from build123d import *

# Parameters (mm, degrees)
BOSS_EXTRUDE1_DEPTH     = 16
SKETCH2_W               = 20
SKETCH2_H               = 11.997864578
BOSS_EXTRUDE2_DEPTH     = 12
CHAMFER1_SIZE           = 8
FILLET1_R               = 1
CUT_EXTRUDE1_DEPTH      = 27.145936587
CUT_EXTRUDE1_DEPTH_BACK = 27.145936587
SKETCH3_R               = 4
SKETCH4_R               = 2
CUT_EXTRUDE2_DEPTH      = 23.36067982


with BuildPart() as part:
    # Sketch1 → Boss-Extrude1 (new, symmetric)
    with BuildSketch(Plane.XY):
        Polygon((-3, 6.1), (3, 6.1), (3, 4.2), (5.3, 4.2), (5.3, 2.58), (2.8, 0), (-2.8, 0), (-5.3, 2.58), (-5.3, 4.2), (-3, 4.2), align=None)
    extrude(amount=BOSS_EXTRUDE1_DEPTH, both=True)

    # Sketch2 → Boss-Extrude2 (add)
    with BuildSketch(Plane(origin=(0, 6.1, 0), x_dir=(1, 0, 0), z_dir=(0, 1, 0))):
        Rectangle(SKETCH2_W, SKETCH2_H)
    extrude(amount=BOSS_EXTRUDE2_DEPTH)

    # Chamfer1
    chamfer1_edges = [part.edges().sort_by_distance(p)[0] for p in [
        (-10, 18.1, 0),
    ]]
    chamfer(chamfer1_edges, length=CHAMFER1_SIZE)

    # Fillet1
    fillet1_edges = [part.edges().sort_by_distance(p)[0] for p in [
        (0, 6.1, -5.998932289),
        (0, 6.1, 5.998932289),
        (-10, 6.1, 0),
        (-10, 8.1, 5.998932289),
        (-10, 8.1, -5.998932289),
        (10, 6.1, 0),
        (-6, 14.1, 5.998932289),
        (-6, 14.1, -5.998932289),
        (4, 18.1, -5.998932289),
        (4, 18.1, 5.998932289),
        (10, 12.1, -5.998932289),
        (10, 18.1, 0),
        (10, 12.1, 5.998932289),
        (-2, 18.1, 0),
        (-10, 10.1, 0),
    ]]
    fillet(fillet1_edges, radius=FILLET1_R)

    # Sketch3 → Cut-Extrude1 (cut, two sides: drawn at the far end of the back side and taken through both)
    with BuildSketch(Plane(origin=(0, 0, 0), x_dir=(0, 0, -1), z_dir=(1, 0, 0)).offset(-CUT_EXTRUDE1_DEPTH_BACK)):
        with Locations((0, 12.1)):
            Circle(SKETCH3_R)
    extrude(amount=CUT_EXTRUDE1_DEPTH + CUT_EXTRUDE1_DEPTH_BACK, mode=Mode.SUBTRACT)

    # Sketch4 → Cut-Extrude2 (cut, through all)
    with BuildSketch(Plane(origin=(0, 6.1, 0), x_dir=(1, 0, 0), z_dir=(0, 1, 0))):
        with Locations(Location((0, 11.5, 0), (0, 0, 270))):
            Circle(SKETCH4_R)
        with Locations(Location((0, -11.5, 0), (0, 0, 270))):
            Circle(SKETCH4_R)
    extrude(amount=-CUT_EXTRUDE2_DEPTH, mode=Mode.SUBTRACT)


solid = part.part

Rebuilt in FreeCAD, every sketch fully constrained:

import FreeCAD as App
import Part
import Sketcher

V = App.Vector


def edges_at(feature, points):
    """Names of the edges that pass closest to the given points."""
    edges = feature.Shape.Edges
    near = lambda p: min(range(len(edges)), key=lambda i: edges[i].distToShape(Part.Vertex(*p))[0])
    return sorted({f"Edge{near(p) + 1}" for p in points})


def add_polygon(sketch, points):
    """Adds a closed chain of lines whose ends are joined by coincident constraints."""
    first, n = sketch.GeometryCount, len(points)
    for a, b in zip(points, points[1:] + points[:1]):
        sketch.addGeometry(Part.LineSegment(App.Vector(*a, 0), App.Vector(*b, 0)), False)
    for i in range(n):
        sketch.addConstraint(Sketcher.Constraint("Coincident", first + i, 2, first + (i + 1) % n, 1))

doc = App.newDocument("Part")
body = doc.addObject("PartDesign::Body", "Body")

sketch1 = body.newObject("Sketcher::SketchObject", "Sketch")
sketch1.AttachmentSupport = (doc.getObject("XY_Plane"), [""])
sketch1.MapMode = "FlatFace"
add_polygon(sketch1, [(3, 6.1), (-3, 6.1), (-3, 4.2), (-5.3, 4.2), (-5.3, 2.6), (-2.8, 0), (2.8, 0), (5.3, 2.6), (5.3, 4.2), (3, 4.2)])
sketch1.addConstraint(Sketcher.Constraint("Horizontal", 0))
sketch1.addConstraint(Sketcher.Constraint("Vertical", 1))
sketch1.addConstraint(Sketcher.Constraint("Horizontal", 2))
sketch1.addConstraint(Sketcher.Constraint("Vertical", 3))
sketch1.addConstraint(Sketcher.Constraint("Horizontal", 5))
sketch1.addConstraint(Sketcher.Constraint("Vertical", 7))
sketch1.addConstraint(Sketcher.Constraint("Horizontal", 8))
sketch1.addConstraint(Sketcher.Constraint("Vertical", 9))
sketch1.addConstraint(Sketcher.Constraint("Symmetric", 4, 2, 5, 2, -1, 1))
sketch1.addConstraint(Sketcher.Constraint("Symmetric", 3, 2, 6, 2, -2))
sketch1.addConstraint(Sketcher.Constraint("Symmetric", 1, 2, 8, 2, -2))
sketch1.addConstraint(Sketcher.Constraint("DistanceX", 0, 2, 0, 1, 6.0))
sketch1.addConstraint(Sketcher.Constraint("DistanceX", 2, 2, 2, 1, 2.3))
sketch1.addConstraint(Sketcher.Constraint("DistanceX", 5, 1, 5, 2, 5.6))
sketch1.addConstraint(Sketcher.Constraint("DistanceY", 1, 2, 1, 1, 1.9))
sketch1.addConstraint(Sketcher.Constraint("DistanceY", 3, 2, 3, 1, 1.62))
sketch1.addConstraint(Sketcher.Constraint("DistanceY", -1, 1, 0, 2, 6.1))
pad1 = body.newObject("PartDesign::Pad", "Pad")
pad1.Profile = sketch1
pad1.Length = 32
pad1.Midplane = True

sketch2 = body.newObject("Sketcher::SketchObject", "Sketch001")
sketch2.AttachmentSupport = (doc.getObject("XZ_Plane"), [""])
sketch2.MapMode = "FlatFace"
sketch2.AttachmentOffset = App.Placement(V(0, 0, -6.1), App.Rotation())
add_polygon(sketch2, [(-10, -6), (-10, 6), (10, 6), (10, -6)])
sketch2.addConstraint(Sketcher.Constraint("Vertical", 0))
sketch2.addConstraint(Sketcher.Constraint("Horizontal", 1))
sketch2.addConstraint(Sketcher.Constraint("Vertical", 2))
sketch2.addConstraint(Sketcher.Constraint("Horizontal", 3))
sketch2.addConstraint(Sketcher.Constraint("Symmetric", 0, 2, 2, 2, -1, 1))
sketch2.addConstraint(Sketcher.Constraint("DistanceX", 1, 1, 1, 2, 20.0))
sketch2.addConstraint(Sketcher.Constraint("DistanceY", 0, 1, 0, 2, 11.997865))
pad2 = body.newObject("PartDesign::Pad", "Pad001")
pad2.Profile = sketch2
pad2.Length = 12
pad2.Reversed = True
doc.recompute()

chamfer = body.newObject("PartDesign::Chamfer", "Chamfer")
chamfer.Base = (pad2, edges_at(pad2, [(-10, 18.1, 0)]))
chamfer.Size = 8
doc.recompute()

fillet = body.newObject("PartDesign::Fillet", "Fillet")
fillet.Base = (chamfer, edges_at(chamfer, [
    (0, 6.1, -5.999),
    (0, 6.1, 5.999),
    (-10, 6.1, 0),
    (-10, 8.1, 5.999),
    (-10, 8.1, -5.999),
    (10, 6.1, 0),
    (-6, 14.1, 5.999),
    (-6, 14.1, -5.999),
    (4, 18.1, -5.999),
    (4, 18.1, 5.999),
    (10, 12.1, -5.999),
    (10, 18.1, 0),
    (10, 12.1, 5.999),
    (-2, 18.1, 0),
    (-10, 10.1, 0),
]))
fillet.Radius = 1

sketch3 = body.newObject("Sketcher::SketchObject", "Sketch002")
sketch3.AttachmentSupport = (doc.getObject("YZ_Plane"), [""])
sketch3.MapMode = "FlatFace"
sketch3.addGeometry(Part.Circle(V(12.1, 0, 0), V(0, 0, 1), 4), False)
sketch3.addConstraint(Sketcher.Constraint("PointOnObject", 0, 3, -1))
sketch3.addConstraint(Sketcher.Constraint("Diameter", 0, 8.0))
sketch3.addConstraint(Sketcher.Constraint("DistanceX", -1, 1, 0, 3, 12.1))
pocket1 = body.newObject("PartDesign::Pocket", "Pocket")
pocket1.Profile = sketch3
pocket1.Type = "ThroughAll"
pocket1.Midplane = True

sketch4 = body.newObject("Sketcher::SketchObject", "Sketch003")
sketch4.AttachmentSupport = (doc.getObject("XZ_Plane"), [""])
sketch4.MapMode = "FlatFace"
sketch4.AttachmentOffset = App.Placement(V(0, 0, -6.1), App.Rotation())
sketch4.addGeometry(Part.Circle(V(0, -11.5, 0), V(0, 0, 1), 2), False)
sketch4.addGeometry(Part.Circle(V(0, 11.5, 0), V(0, 0, 1), 2), False)
sketch4.addConstraint(Sketcher.Constraint("Equal", 0, 1))
sketch4.addConstraint(Sketcher.Constraint("Symmetric", 0, 3, 1, 3, -1, 1))
sketch4.addConstraint(Sketcher.Constraint("PointOnObject", 0, 3, -2))
sketch4.addConstraint(Sketcher.Constraint("Diameter", 0, 4.0))
sketch4.addConstraint(Sketcher.Constraint("DistanceY", 0, 3, 1, 3, 23.0))
pocket2 = body.newObject("PartDesign::Pocket", "Pocket001")
pocket2.Profile = sketch4
pocket2.Type = "ThroughAll"
pocket2.Reversed = True

doc.recompute()
